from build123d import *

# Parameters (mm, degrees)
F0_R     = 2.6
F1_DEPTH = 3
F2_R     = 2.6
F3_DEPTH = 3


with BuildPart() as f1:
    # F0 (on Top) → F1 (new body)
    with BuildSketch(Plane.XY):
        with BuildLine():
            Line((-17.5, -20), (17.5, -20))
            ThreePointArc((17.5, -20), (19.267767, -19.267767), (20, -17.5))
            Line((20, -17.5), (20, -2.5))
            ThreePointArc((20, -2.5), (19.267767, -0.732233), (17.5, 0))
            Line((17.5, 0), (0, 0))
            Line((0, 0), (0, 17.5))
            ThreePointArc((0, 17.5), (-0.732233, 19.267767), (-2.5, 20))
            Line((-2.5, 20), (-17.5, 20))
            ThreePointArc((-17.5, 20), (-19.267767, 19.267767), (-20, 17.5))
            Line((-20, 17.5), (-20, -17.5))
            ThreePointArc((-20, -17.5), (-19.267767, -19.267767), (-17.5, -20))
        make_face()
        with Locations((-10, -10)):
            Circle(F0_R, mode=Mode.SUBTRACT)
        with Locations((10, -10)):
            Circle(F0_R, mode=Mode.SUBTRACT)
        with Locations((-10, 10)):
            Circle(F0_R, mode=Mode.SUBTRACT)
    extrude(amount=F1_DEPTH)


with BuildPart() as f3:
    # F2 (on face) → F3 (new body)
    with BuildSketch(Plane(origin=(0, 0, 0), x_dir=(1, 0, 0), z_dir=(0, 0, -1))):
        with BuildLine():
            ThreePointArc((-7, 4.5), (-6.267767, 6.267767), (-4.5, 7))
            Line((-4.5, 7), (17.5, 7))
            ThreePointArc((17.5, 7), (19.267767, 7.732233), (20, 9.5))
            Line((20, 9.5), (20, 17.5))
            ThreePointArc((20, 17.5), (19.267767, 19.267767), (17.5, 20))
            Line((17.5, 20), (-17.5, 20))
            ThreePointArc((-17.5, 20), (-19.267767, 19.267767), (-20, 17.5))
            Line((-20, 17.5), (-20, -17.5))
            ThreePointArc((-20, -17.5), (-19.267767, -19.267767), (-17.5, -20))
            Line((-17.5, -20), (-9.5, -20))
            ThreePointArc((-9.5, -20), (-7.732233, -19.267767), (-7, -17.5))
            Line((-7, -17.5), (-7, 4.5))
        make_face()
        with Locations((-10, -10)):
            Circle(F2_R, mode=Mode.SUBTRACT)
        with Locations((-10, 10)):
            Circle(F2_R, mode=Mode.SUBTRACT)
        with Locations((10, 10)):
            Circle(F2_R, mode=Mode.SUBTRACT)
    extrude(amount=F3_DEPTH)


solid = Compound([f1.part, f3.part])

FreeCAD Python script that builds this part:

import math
import FreeCAD as App
import Part
import Sketcher

V = App.Vector
Q = App.Units.Quantity

doc = App.newDocument("Part")
body = doc.addObject("PartDesign::Body", "Body")

sketch1 = body.newObject("Sketcher::SketchObject", "Sketch")
sketch1.AttachmentSupport = (doc.getObject("XY_Plane"), [""])
sketch1.MapMode = "FlatFace"
sketch1.addGeometry(Part.LineSegment(V(-17.5, -20, 0), V(17.5, -20, 0)), False)
sketch1.addGeometry(Part.ArcOfCircle(Part.Circle(V(17.5, -17.5, 0), V(0, 0, 1), 2.5), math.radians(-90.000004), math.radians(0.000004)), False)
sketch1.addGeometry(Part.LineSegment(V(20, -17.5, 0), V(20, -2.5, 0)), False)
sketch1.addGeometry(Part.ArcOfCircle(Part.Circle(V(17.5, -2.5, 0), V(0, 0, 1), 2.5), math.radians(-0.000004), math.radians(90.000004)), False)
sketch1.addGeometry(Part.LineSegment(V(17.5, 0, 0), V(0, 0, 0)), False)
sketch1.addGeometry(Part.LineSegment(V(0, 0, 0), V(0, 17.5, 0)), False)
sketch1.addGeometry(Part.ArcOfCircle(Part.Circle(V(-2.5, 17.5, 0), V(0, 0, 1), 2.5), math.radians(-0.000004), math.radians(90.000004)), False)
sketch1.addGeometry(Part.LineSegment(V(-2.5, 20, 0), V(-17.5, 20, 0)), False)
sketch1.addGeometry(Part.ArcOfCircle(Part.Circle(V(-17.5, 17.5, 0), V(0, 0, 1), 2.5), math.radians(89.999996), math.radians(180.000004)), False)
sketch1.addGeometry(Part.LineSegment(V(-20, 17.5, 0), V(-20, -17.5, 0)), False)
sketch1.addGeometry(Part.ArcOfCircle(Part.Circle(V(-17.5, -17.5, 0), V(0, 0, 1), 2.5), math.radians(179.999996), math.radians(270.000004)), False)
sketch1.addGeometry(Part.Circle(V(-10, -10, 0), V(0, 0, 1), 2.6), False)
sketch1.addGeometry(Part.Circle(V(10, -10, 0), V(0, 0, 1), 2.6), False)
sketch1.addGeometry(Part.Circle(V(-10, 10, 0), V(0, 0, 1), 2.6), False)
sketch1.addConstraint(Sketcher.Constraint("Tangent", 0, 2, 1, 1))
sketch1.addConstraint(Sketcher.Constraint("Tangent", 1, 2, 2, 1))
sketch1.addConstraint(Sketcher.Constraint("Tangent", 2, 2, 3, 1))
sketch1.addConstraint(Sketcher.Constraint("Tangent", 3, 2, 4, 1))
sketch1.addConstraint(Sketcher.Constraint("Coincident", 4, 2, 5, 1))
sketch1.addConstraint(Sketcher.Constraint("Tangent", 5, 2, 6, 1))
sketch1.addConstraint(Sketcher.Constraint("Tangent", 6, 2, 7, 1))
sketch1.addConstraint(Sketcher.Constraint("Tangent", 7, 2, 8, 1))
sketch1.addConstraint(Sketcher.Constraint("Tangent", 8, 2, 9, 1))
sketch1.addConstraint(Sketcher.Constraint("Tangent", 9, 2, 10, 1))
sketch1.addConstraint(Sketcher.Constraint("Tangent", 10, 2, 0, 1))
sketch1.addConstraint(Sketcher.Constraint("Horizontal", 0))
sketch1.addConstraint(Sketcher.Constraint("Vertical", 2))
sketch1.addConstraint(Sketcher.Constraint("Horizontal", 4))
sketch1.addConstraint(Sketcher.Constraint("Vertical", 5))
sketch1.addConstraint(Sketcher.Constraint("Horizontal", 7))
sketch1.addConstraint(Sketcher.Constraint("Vertical", 9))
sketch1.addConstraint(Sketcher.Constraint("Coincident", 4, 2, -1, 1))
sketch1.addConstraint(Sketcher.Constraint("Equal", 1, 3))
sketch1.addConstraint(Sketcher.Constraint("Equal", 3, 6))
sketch1.addConstraint(Sketcher.Constraint("Equal", 6, 8))
sketch1.addConstraint(Sketcher.Constraint("Equal", 8, 10))
sketch1.addConstraint(Sketcher.Constraint("Equal", 11, 12))
sketch1.addConstraint(Sketcher.Constraint("Equal", 12, 13))
sketch1.addConstraint(Sketcher.Constraint("Symmetric", 1, 3, 8, 3, -1, 1))
sketch1.addConstraint(Sketcher.Constraint("Symmetric", 12, 3, 13, 3, -1, 1))
sketch1.addConstraint(Sketcher.Constraint("Symmetric", 11, 3, 12, 3, -2))
sketch1.addConstraint(Sketcher.Constraint("Equal", 7, 2))
sketch1.addConstraint(Sketcher.Constraint("Diameter", 11, Q("5.2 mm")))
sketch1.addConstraint(Sketcher.Constraint("Radius", 1, Q("2.5 mm")))
sketch1.addConstraint(Sketcher.Constraint("DistanceX", 0, 1, 0, 2, Q("35 mm")))
sketch1.addConstraint(Sketcher.Constraint("DistanceX", 11, 3, -1, 1, Q("10 mm")))
sketch1.addConstraint(Sketcher.Constraint("DistanceY", 11, 3, -1, 1, Q("10 mm")))
pad1 = body.newObject("PartDesign::Pad", "Pad")
pad1.Profile = sketch1
pad1.Length = 3
body2 = doc.addObject("PartDesign::Body", "Body001")

sketch2 = body2.newObject("Sketcher::SketchObject", "Sketch001")
sketch2.AttachmentSupport = (doc.getObject("XY_Plane001"), [""])
sketch2.MapMode = "FlatFace"
sketch2.addGeometry(Part.ArcOfCircle(Part.Circle(V(-4.5, -4.5, 0), V(0, 0, 1), 2.5), math.radians(179.999996), math.radians(270.000004)), False)
sketch2.addGeometry(Part.LineSegment(V(-4.5, -7, 0), V(17.5, -7, 0)), False)
sketch2.addGeometry(Part.ArcOfCircle(Part.Circle(V(17.5, -9.5, 0), V(0, 0, 1), 2.5), math.radians(-0.000004), math.radians(90.000004)), False)
sketch2.addGeometry(Part.LineSegment(V(20, -9.5, 0), V(20, -17.5, 0)), False)
sketch2.addGeometry(Part.ArcOfCircle(Part.Circle(V(17.5, -17.5, 0), V(0, 0, 1), 2.5), math.radians(-90.000004), math.radians(0.000004)), False)
sketch2.addGeometry(Part.LineSegment(V(17.5, -20, 0), V(-17.5, -20, 0)), False)
sketch2.addGeometry(Part.ArcOfCircle(Part.Circle(V(-17.5, -17.5, 0), V(0, 0, 1), 2.5), math.radians(179.999996), math.radians(270.000004)), False)
sketch2.addGeometry(Part.LineSegment(V(-20, -17.5, 0), V(-20, 17.5, 0)), False)
sketch2.addGeometry(Part.ArcOfCircle(Part.Circle(V(-17.5, 17.5, 0), V(0, 0, 1), 2.5), math.radians(89.999996), math.radians(180.000004)), False)
sketch2.addGeometry(Part.LineSegment(V(-17.5, 20, 0), V(-9.5, 20, 0)), False)
sketch2.addGeometry(Part.ArcOfCircle(Part.Circle(V(-9.5, 17.5, 0), V(0, 0, 1), 2.5), math.radians(-0.000004), math.radians(90.000004)), False)
sketch2.addGeometry(Part.LineSegment(V(-7, 17.5, 0), V(-7, -4.5, 0)), False)
sketch2.addGeometry(Part.Circle(V(-10, 10, 0), V(0, 0, 1), 2.6), False)
sketch2.addGeometry(Part.Circle(V(-10, -10, 0), V(0, 0, 1), 2.6), False)
sketch2.addGeometry(Part.Circle(V(10, -10, 0), V(0, 0, 1), 2.6), False)
sketch2.addConstraint(Sketcher.Constraint("Tangent", 0, 2, 1, 1))
sketch2.addConstraint(Sketcher.Constraint("Tangent", 1, 2, 2, 2))
sketch2.addConstraint(Sketcher.Constraint("Tangent", 2, 1, 3, 1))
sketch2.addConstraint(Sketcher.Constraint("Tangent", 3, 2, 4, 2))
sketch2.addConstraint(Sketcher.Constraint("Tangent", 4, 1, 5, 1))
sketch2.addConstraint(Sketcher.Constraint("Tangent", 5, 2, 6, 2))
sketch2.addConstraint(Sketcher.Constraint("Tangent", 6, 1, 7, 1))
sketch2.addConstraint(Sketcher.Constraint("Tangent", 7, 2, 8, 2))
sketch2.addConstraint(Sketcher.Constraint("Tangent", 8, 1, 9, 1))
sketch2.addConstraint(Sketcher.Constraint("Tangent", 9, 2, 10, 2))
sketch2.addConstraint(Sketcher.Constraint("Tangent", 10, 1, 11, 1))
sketch2.addConstraint(Sketcher.Constraint("Tangent", 11, 2, 0, 1))
sketch2.addConstraint(Sketcher.Constraint("Horizontal", 1))
sketch2.addConstraint(Sketcher.Constraint("Vertical", 3))
sketch2.addConstraint(Sketcher.Constraint("Horizontal", 5))
sketch2.addConstraint(Sketcher.Constraint("Vertical", 7))
sketch2.addConstraint(Sketcher.Constraint("Horizontal", 9))
sketch2.addConstraint(Sketcher.Constraint("Vertical", 11))
sketch2.addConstraint(Sketcher.Constraint("Equal", 0, 2))
sketch2.addConstraint(Sketcher.Constraint("Equal", 2, 4))
sketch2.addConstraint(Sketcher.Constraint("Equal", 4, 6))
sketch2.addConstraint(Sketcher.Constraint("Equal", 6, 8))
sketch2.addConstraint(Sketcher.Constraint("Equal", 8, 10))
sketch2.addConstraint(Sketcher.Constraint("Equal", 12, 13))
sketch2.addConstraint(Sketcher.Constraint("Equal", 13, 14))
sketch2.addConstraint(Sketcher.Constraint("Symmetric", 4, 3, 8, 3, -1, 1))
sketch2.addConstraint(Sketcher.Constraint("Symmetric", 12, 3, 14, 3, -1, 1))
sketch2.addConstraint(Sketcher.Constraint("Symmetric", 13, 3, 14, 3, -2))
sketch2.addConstraint(Sketcher.Constraint("Equal", 9, 3))
sketch2.addConstraint(Sketcher.Constraint("Equal", 5, 7))
sketch2.addConstraint(Sketcher.Constraint("Diameter", 12, Q("5.2 mm")))
sketch2.addConstraint(Sketcher.Constraint("Radius", 0, Q("2.5 mm")))
sketch2.addConstraint(Sketcher.Constraint("DistanceX", 1, 1, 1, 2, Q("22 mm")))
sketch2.addConstraint(Sketcher.Constraint("DistanceX", 5, 2, 5, 1, Q("35 mm")))
sketch2.addConstraint(Sketcher.Constraint("DistanceX", 12, 3, -1, 1, Q("10 mm")))
sketch2.addConstraint(Sketcher.Constraint("DistanceY", -1, 1, 12, 3, Q("10 mm")))
pad2 = body2.newObject("PartDesign::Pad", "Pad001")
pad2.Profile = sketch2
pad2.Length = 3
pad2.Reversed = True

doc.recompute()
